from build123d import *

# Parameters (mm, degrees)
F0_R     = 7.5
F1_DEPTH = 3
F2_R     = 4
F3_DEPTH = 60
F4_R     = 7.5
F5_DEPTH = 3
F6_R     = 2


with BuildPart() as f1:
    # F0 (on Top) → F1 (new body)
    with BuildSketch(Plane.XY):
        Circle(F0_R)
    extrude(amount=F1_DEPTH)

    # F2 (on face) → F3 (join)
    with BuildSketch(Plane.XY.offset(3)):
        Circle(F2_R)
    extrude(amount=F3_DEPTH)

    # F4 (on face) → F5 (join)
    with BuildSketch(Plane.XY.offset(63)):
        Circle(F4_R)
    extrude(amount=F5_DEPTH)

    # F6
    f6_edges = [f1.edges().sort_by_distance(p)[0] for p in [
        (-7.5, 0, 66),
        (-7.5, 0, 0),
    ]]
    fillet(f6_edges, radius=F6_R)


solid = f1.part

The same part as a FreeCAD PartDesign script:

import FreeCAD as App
import Part
import Sketcher

V = App.Vector
Q = App.Units.Quantity


def edges_at(feature, points):
    """Names of the edges that pass closest to the given points."""
    edges = feature.Shape.Edges
    near = lambda p: min(range(len(edges)), key=lambda i: edges[i].distToShape(Part.Vertex(*p))[0])
    return sorted({f"Edge{near(p) + 1}" for p in points})

doc = App.newDocument("Part")
body = doc.addObject("PartDesign::Body", "Body")

# Sketch on XY plane
sketch1 = body.newObject("Sketcher::SketchObject", "Sketch")
sketch1.AttachmentSupport = (doc.getObject("XY_Plane"), [""])
sketch1.MapMode = "FlatFace"
sketch1.addGeometry(Part.Circle(V(0, 0, 0), V(0, 0, 1), 8), False)
sketch1.addConstraint([
    Sketcher.Constraint("Coincident", 0, 3, -1, 1),
    Sketcher.Constraint("Diameter", 0, Q("15 mm")),
])
pad1 = body.newObject("PartDesign::Pad", "Pad")
pad1.Profile = sketch1
pad1.Length = 3

# Sketch on XY plane
sketch2 = body.newObject("Sketcher::SketchObject", "Sketch001")
sketch2.AttachmentSupport = (doc.getObject("XY_Plane"), [""])
sketch2.MapMode = "FlatFace"
sketch2.AttachmentOffset = App.Placement(V(0, 0, 3), App.Rotation())
sketch2.addGeometry(Part.Circle(V(0, 0, 0), V(0, 0, 1), 4), False)
sketch2.addConstraint([
    Sketcher.Constraint("Coincident", 0, 3, -1, 1),
    Sketcher.Constraint("Diameter", 0, Q("8 mm")),
])
pad2 = body.newObject("PartDesign::Pad", "Pad001")
pad2.Profile = sketch2
pad2.Length = 60

# Sketch on XY plane
sketch3 = body.newObject("Sketcher::SketchObject", "Sketch002")
sketch3.AttachmentSupport = (doc.getObject("XY_Plane"), [""])
sketch3.MapMode = "FlatFace"
sketch3.AttachmentOffset = App.Placement(V(0, 0, 63), App.Rotation())
sketch3.addGeometry(Part.Circle(V(0, 0, 0), V(0, 0, 1), 8), False)
sketch3.addConstraint([
    Sketcher.Constraint("Coincident", 0, 3, -1, 1),
    Sketcher.Constraint("Diameter", 0, Q("15 mm")),
])
pad3 = body.newObject("PartDesign::Pad", "Pad002")
pad3.Profile = sketch3
pad3.Length = 3
doc.recompute()

fillet = body.newObject("PartDesign::Fillet", "Fillet")
fillet.Base = (pad3, edges_at(pad3, [(-7.5, 0, 66), (-7.5, 0, 0)]))
fillet.Radius = 2

doc.recompute()
